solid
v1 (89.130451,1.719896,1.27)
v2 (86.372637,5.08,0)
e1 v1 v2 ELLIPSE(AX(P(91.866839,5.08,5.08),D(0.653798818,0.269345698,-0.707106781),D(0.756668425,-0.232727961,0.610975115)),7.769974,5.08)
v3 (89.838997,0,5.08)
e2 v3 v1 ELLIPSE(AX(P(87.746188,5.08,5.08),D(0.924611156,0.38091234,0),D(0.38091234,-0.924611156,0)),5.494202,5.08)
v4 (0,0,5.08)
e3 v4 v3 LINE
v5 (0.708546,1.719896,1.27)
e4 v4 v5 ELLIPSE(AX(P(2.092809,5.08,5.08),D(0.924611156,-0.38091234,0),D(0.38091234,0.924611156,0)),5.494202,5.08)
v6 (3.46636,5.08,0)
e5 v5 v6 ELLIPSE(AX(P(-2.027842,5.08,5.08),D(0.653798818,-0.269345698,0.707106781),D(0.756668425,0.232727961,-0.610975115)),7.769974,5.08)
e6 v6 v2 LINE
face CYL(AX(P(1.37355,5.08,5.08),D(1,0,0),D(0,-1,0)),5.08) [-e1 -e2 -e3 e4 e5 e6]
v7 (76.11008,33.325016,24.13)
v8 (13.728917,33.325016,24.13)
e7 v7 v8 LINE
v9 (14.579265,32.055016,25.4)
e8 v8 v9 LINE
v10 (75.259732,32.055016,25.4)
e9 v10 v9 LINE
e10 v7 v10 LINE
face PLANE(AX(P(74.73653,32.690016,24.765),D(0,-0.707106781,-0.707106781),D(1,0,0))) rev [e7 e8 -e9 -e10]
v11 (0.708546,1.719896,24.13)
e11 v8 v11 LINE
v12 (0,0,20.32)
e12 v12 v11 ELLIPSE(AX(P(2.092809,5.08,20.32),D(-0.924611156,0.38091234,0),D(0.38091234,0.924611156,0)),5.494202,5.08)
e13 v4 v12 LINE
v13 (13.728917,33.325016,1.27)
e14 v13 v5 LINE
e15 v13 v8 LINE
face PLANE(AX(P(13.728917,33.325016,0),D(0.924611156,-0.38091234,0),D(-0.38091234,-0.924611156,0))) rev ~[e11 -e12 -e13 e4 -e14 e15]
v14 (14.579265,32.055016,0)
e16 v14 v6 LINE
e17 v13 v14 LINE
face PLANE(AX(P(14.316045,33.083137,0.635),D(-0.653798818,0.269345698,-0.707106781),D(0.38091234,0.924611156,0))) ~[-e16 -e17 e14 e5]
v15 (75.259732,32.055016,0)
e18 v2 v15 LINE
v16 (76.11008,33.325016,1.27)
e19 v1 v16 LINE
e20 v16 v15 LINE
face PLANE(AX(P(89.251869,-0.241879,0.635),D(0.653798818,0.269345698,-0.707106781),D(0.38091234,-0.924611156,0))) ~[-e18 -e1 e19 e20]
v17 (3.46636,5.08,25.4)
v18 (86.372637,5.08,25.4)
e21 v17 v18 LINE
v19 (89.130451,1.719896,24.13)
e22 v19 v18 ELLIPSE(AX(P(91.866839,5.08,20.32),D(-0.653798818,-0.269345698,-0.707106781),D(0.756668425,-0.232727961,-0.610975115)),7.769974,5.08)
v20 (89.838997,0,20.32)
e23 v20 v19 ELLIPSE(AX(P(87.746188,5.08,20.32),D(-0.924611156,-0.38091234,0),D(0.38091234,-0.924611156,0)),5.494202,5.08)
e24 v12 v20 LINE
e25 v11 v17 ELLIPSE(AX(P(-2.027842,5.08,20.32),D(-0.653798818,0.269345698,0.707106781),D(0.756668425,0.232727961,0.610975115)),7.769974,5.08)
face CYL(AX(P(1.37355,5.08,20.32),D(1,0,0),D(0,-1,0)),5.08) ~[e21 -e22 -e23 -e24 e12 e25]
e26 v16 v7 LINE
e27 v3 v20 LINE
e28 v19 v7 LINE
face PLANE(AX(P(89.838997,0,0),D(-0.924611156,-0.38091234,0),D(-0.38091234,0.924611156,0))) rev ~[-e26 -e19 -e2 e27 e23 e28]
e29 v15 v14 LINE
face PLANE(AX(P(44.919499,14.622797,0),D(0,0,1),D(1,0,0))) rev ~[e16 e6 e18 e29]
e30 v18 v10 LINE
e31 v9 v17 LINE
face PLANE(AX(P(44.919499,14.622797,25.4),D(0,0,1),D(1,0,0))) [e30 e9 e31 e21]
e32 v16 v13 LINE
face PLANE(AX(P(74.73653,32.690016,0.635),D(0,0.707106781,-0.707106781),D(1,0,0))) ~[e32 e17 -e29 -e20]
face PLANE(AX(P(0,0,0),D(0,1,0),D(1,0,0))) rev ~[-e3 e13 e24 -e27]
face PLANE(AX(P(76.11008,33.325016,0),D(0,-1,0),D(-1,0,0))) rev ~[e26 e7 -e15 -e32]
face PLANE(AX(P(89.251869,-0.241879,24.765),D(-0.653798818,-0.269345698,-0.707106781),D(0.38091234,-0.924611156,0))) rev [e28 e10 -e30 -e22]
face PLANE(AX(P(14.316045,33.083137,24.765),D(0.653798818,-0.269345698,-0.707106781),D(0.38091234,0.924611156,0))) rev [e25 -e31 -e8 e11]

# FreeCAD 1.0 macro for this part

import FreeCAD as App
import Part
import Sketcher
from FreeCAD import Vector


def edges_at(feature, points):
    """Names of the edges that pass closest to the given points."""
    edges = feature.Shape.Edges
    near = lambda p: min(range(len(edges)), key=lambda i: edges[i].distToShape(Part.Vertex(*p))[0])
    return sorted({f"Edge{near(p) + 1}" for p in points})

doc = App.newDocument("Part")
params = doc.addObject("Spreadsheet::Sheet", "Params")
for row, (alias, value) in enumerate([
    ("pad1_length", "1 in"),
    ("chamfer_size", "0.05 in"),
    ("fillet_radius", "0.2 in"),
    ("chamfer2_size", "0.05 in"),
], start=1):
    params.set(f"A{row}", alias)
    params.set(f"B{row}", "=" + value)
    params.setAlias(f"B{row}", alias)

body = doc.addObject("PartDesign::Body", "Body")

# Sketch on XY plane
sketch1 = body.newObject("Sketcher::SketchObject", "Sketch")
sketch1.AttachmentSupport = (doc.getObject("XY_Plane"), [""])
sketch1.MapMode = "FlatFace"
sketch1.addGeometry([
    Part.LineSegment(Vector(14, 33, 0), Vector(0, 0, 0)),
    Part.LineSegment(Vector(0, 0, 0), Vector(90, 0, 0)),
    Part.LineSegment(Vector(90, 0, 0), Vector(76, 33, 0)),
    Part.LineSegment(Vector(76, 33, 0), Vector(14, 33, 0)),
], False)
sketch1.addConstraint([
    Sketcher.Constraint("Coincident", 0, 2, 1, 1),
    Sketcher.Constraint("Coincident", 1, 2, 2, 1),
    Sketcher.Constraint("Coincident", 2, 2, 3, 1),
    Sketcher.Constraint("Coincident", 3, 2, 0, 1),
    Sketcher.Constraint("Horizontal", 1),
    Sketcher.Constraint("Horizontal", 3),
    Sketcher.Constraint("Coincident", 0, 2, -1, 1),
    Sketcher.Constraint("Equal", 0, 2),
    Sketcher.Constraint("DistanceX", 1, 1, 1, 2, 89.838997),
    Sketcher.Constraint("DistanceX", 3, 2, 3, 1, 62.381163),
    Sketcher.Constraint("Distance", 0, 36.042195),
])
pad1 = body.newObject("PartDesign::Pad", "Pad")
pad1.Profile = sketch1
pad1.setExpression("Length", "Params.pad1_length")
doc.recompute()

chamfer = body.newObject("PartDesign::Chamfer", "Chamfer")
chamfer.Base = (pad1, edges_at(pad1, [
    (6.864, 16.663, 25.4),
    (6.864, 16.663, 0),
    (82.975, 16.663, 25.4),
    (82.975, 16.663, 0),
]))
chamfer.setExpression("Size", "Params.chamfer_size")
doc.recompute()

fillet = body.newObject("PartDesign::Fillet", "Fillet")
fillet.Base = (chamfer, edges_at(chamfer, [(44.919, 0, 0), (44.919, 0, 25.4)]))
fillet.setExpression("Radius", "Params.fillet_radius")
doc.recompute()

chamfer2 = body.newObject("PartDesign::Chamfer", "Chamfer001")
chamfer2.Base = (fillet, edges_at(fillet, [(44.919, 33.325, 25.4), (44.919, 33.325, 0)]))
chamfer2.setExpression("Size", "Params.chamfer2_size")

doc.recompute()
